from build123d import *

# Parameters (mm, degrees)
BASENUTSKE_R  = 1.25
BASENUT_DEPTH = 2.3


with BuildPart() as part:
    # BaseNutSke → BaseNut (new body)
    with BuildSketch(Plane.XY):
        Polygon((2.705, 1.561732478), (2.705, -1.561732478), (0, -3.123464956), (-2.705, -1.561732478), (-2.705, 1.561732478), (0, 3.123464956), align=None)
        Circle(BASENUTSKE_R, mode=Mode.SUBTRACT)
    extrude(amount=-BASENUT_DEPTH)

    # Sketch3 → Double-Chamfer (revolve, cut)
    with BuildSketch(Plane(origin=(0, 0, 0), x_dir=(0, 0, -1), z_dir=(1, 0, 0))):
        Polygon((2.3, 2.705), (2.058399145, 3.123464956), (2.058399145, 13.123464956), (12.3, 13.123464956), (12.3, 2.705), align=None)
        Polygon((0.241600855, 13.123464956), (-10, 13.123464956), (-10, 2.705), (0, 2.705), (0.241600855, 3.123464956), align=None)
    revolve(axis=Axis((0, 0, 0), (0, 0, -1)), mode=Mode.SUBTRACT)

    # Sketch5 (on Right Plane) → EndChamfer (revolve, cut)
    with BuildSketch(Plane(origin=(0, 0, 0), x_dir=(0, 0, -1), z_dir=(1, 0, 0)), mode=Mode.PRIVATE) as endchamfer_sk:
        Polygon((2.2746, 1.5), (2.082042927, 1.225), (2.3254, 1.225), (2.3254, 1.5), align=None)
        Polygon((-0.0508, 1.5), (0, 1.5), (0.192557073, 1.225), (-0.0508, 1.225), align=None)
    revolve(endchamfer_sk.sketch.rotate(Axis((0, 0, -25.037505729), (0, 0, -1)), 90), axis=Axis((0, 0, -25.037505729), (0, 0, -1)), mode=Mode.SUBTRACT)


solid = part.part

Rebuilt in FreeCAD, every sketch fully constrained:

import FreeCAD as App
import Part
import Sketcher
Q = App.Units.Quantity

doc = App.newDocument("Part")
body = doc.addObject("PartDesign::Body", "Body")

# Sketch on XY plane
sketch1 = body.newObject("Sketcher::SketchObject", "Sketch")
sketch1.AttachmentSupport = (doc.getObject("XY_Plane"), [""])
sketch1.MapMode = "FlatFace"
sketch1.addGeometry([
    Part.LineSegment(App.Vector(2.705, -1.561732, 0), App.Vector(2.705, 1.561732, 0)),  # 0
    Part.LineSegment(App.Vector(2.705, 1.561732, 0), App.Vector(0, 3.123465, 0)),  # 1
    Part.LineSegment(App.Vector(0, 3.123465, 0), App.Vector(-2.705, 1.561732, 0)),  # 2
    Part.LineSegment(App.Vector(-2.705, 1.561732, 0), App.Vector(-2.705, -1.561732, 0)),  # 3
    Part.LineSegment(App.Vector(-2.705, -1.561732, 0), App.Vector(0, -3.123465, 0)),  # 4
    Part.LineSegment(App.Vector(0, -3.123465, 0), App.Vector(2.705, -1.561732, 0)),  # 5
    Part.Circle(App.Vector(0, 0, 0), App.Vector(0, 0, 1), 1.25),  # 6
], False)
sketch1.addConstraint([
    Sketcher.Constraint("Coincident", 0, 2, 1, 1),
    Sketcher.Constraint("Coincident", 1, 2, 2, 1),
    Sketcher.Constraint("Coincident", 2, 2, 3, 1),
    Sketcher.Constraint("Coincident", 3, 2, 4, 1),
    Sketcher.Constraint("Coincident", 4, 2, 5, 1),
    Sketcher.Constraint("Coincident", 5, 2, 0, 1),
    Sketcher.Constraint("Vertical", 0),
    Sketcher.Constraint("Vertical", 3),
    Sketcher.Constraint("Coincident", 6, 3, -1, 1),
    Sketcher.Constraint("Symmetric", 0, 2, 3, 2, -1, 1),
    Sketcher.Constraint("Symmetric", 1, 2, 4, 2, -1, 1),
    Sketcher.Constraint("PointOnObject", 1, 2, -2),
    Sketcher.Constraint("Parallel", 2, 5),
    Sketcher.Constraint("Horizontal", 0, 2, 2, 2),
    Sketcher.Constraint("Diameter", 6, Q("2.5 mm")),
    Sketcher.Constraint("Angle", 1, Q("150 deg")),
    Sketcher.Constraint("DistanceX", 2, 2, 0, 2, Q("5.41 mm")),
    Sketcher.Constraint("DistanceY", 0, 1, 0, 2, Q("3.123465 mm")),
])
pad1 = body.newObject("PartDesign::Pad", "Pad")
pad1.Profile = sketch1
pad1.Length = 2.3
pad1.Reversed = True

# Sketch on YZ plane
sketch2 = body.newObject("Sketcher::SketchObject", "Sketch001")
sketch2.AttachmentSupport = (doc.getObject("YZ_Plane"), [""])
sketch2.MapMode = "FlatFace"
sketch2.addGeometry([
    Part.LineSegment(App.Vector(3.123465, -2.058399, 0), App.Vector(2.705, -2.3, 0)),  # 0
    Part.LineSegment(App.Vector(2.705, -2.3, 0), App.Vector(2.705, -12.3, 0)),  # 1
    Part.LineSegment(App.Vector(2.705, -12.3, 0), App.Vector(13.123465, -12.3, 0)),  # 2
    Part.LineSegment(App.Vector(13.123465, -12.3, 0), App.Vector(13.123465, -2.058399, 0)),  # 3
    Part.LineSegment(App.Vector(13.123465, -2.058399, 0), App.Vector(3.123465, -2.058399, 0)),  # 4
    Part.LineSegment(App.Vector(13.123465, -0.241601, 0), App.Vector(13.123465, 10, 0)),  # 5
    Part.LineSegment(App.Vector(13.123465, 10, 0), App.Vector(2.705, 10, 0)),  # 6
    Part.LineSegment(App.Vector(2.705, 10, 0), App.Vector(2.705, 0, 0)),  # 7
    Part.LineSegment(App.Vector(2.705, 0, 0), App.Vector(3.123465, -0.241601, 0)),  # 8
    Part.LineSegment(App.Vector(3.123465, -0.241601, 0), App.Vector(13.123465, -0.241601, 0)),  # 9
], False)
sketch2.addConstraint([
    Sketcher.Constraint("Coincident", 0, 2, 1, 1),
    Sketcher.Constraint("Coincident", 1, 2, 2, 1),
    Sketcher.Constraint("Coincident", 2, 2, 3, 1),
    Sketcher.Constraint("Coincident", 3, 2, 4, 1),
    Sketcher.Constraint("Coincident", 4, 2, 0, 1),
    Sketcher.Constraint("Coincident", 5, 2, 6, 1),
    Sketcher.Constraint("Coincident", 6, 2, 7, 1),
    Sketcher.Constraint("Coincident", 7, 2, 8, 1),
    Sketcher.Constraint("Coincident", 8, 2, 9, 1),
    Sketcher.Constraint("Coincident", 9, 2, 5, 1),
    Sketcher.Constraint("Vertical", 1),
    Sketcher.Constraint("Horizontal", 2),
    Sketcher.Constraint("Vertical", 3),
    Sketcher.Constraint("Horizontal", 4),
    Sketcher.Constraint("Vertical", 5),
    Sketcher.Constraint("Horizontal", 6),
    Sketcher.Constraint("Vertical", 7),
    Sketcher.Constraint("Horizontal", 9),
    Sketcher.Constraint("PointOnObject", 7, 2, -1),
    Sketcher.Constraint("Vertical", 3, 2, 5, 2),
    Sketcher.Constraint("Vertical", 1, 2, 6, 2),
    Sketcher.Constraint("Vertical", 4, 2, 8, 2),
    Sketcher.Constraint("Equal", 9, 1),
    Sketcher.Constraint("Equal", 3, 5),
    Sketcher.Constraint("Equal", 1, 7),
    Sketcher.Constraint("DistanceX", 4, 2, 4, 1, Q("10 mm")),
    Sketcher.Constraint("Angle", 0, Q("-150 deg")),
    Sketcher.Constraint("DistanceY", 0, 2, -1, 1, Q("2.3 mm")),
    Sketcher.Constraint("DistanceY", 3, 1, 3, 2, Q("10.241601 mm")),
    Sketcher.Constraint("DistanceX", -1, 1, 0, 2, Q("2.705 mm")),
])
groove = body.newObject("PartDesign::Groove", "Groove")
groove.Profile = sketch2
groove.ReferenceAxis = (sketch2, ["V_Axis"])
groove.Angle = 360

# Sketch on YZ plane
sketch3 = body.newObject("Sketcher::SketchObject", "Sketch002")
sketch3.AttachmentSupport = (doc.getObject("YZ_Plane"), [""])
sketch3.MapMode = "FlatFace"
sketch3.addGeometry([
    Part.LineSegment(App.Vector(1.5, -2.2746, 0), App.Vector(1.225, -2.082043, 0)),  # 0
    Part.LineSegment(App.Vector(1.225, -2.082043, 0), App.Vector(1.225, -2.3254, 0)),  # 1
    Part.LineSegment(App.Vector(1.225, -2.3254, 0), App.Vector(1.5, -2.3254, 0)),  # 2
    Part.LineSegment(App.Vector(1.5, -2.3254, 0), App.Vector(1.5, -2.2746, 0)),  # 3
    Part.LineSegment(App.Vector(1.5, 0, 0), App.Vector(1.5, 0.0508, 0)),  # 4
    Part.LineSegment(App.Vector(1.5, 0.0508, 0), App.Vector(1.225, 0.0508, 0)),  # 5
    Part.LineSegment(App.Vector(1.225, 0.0508, 0), App.Vector(1.225, -0.192557, 0)),  # 6
    Part.LineSegment(App.Vector(1.225, -0.192557, 0), App.Vector(1.5, 0, 0)),  # 7
], False)
sketch3.addConstraint([
    Sketcher.Constraint("Coincident", 0, 2, 1, 1),
    Sketcher.Constraint("Coincident", 1, 2, 2, 1),
    Sketcher.Constraint("Coincident", 2, 2, 3, 1),
    Sketcher.Constraint("Coincident", 3, 2, 0, 1),
    Sketcher.Constraint("Coincident", 4, 2, 5, 1),
    Sketcher.Constraint("Coincident", 5, 2, 6, 1),
    Sketcher.Constraint("Coincident", 6, 2, 7, 1),
    Sketcher.Constraint("Coincident", 7, 2, 4, 1),
    Sketcher.Constraint("Vertical", 1),
    Sketcher.Constraint("Horizontal", 2),
    Sketcher.Constraint("Vertical", 3),
    Sketcher.Constraint("Vertical", 4),
    Sketcher.Constraint("Horizontal", 5),
    Sketcher.Constraint("Vertical", 6),
    Sketcher.Constraint("PointOnObject", 7, 2, -1),
    Sketcher.Constraint("Vertical", 3, 2, 4, 2),
    Sketcher.Constraint("Vertical", 1, 2, 5, 2),
    Sketcher.Constraint("Equal", 3, 4),
    Sketcher.Constraint("Equal", 1, 6),
    Sketcher.Constraint("Angle", 0, Q("145 deg")),
    Sketcher.Constraint("DistanceX", -1, 1, 2, 2, Q("1.5 mm")),
    Sketcher.Constraint("DistanceX", 2, 1, 2, 2, Q("0.275 mm")),
    Sketcher.Constraint("DistanceY", 3, 1, 3, 2, Q("0.0508 mm")),
    Sketcher.Constraint("DistanceY", 1, 2, -1, 1, Q("2.3254 mm")),
])
groove2 = body.newObject("PartDesign::Groove", "Groove001")
groove2.Profile = sketch3
groove2.ReferenceAxis = (sketch3, ["V_Axis"])
groove2.Angle = 360

doc.recompute()
